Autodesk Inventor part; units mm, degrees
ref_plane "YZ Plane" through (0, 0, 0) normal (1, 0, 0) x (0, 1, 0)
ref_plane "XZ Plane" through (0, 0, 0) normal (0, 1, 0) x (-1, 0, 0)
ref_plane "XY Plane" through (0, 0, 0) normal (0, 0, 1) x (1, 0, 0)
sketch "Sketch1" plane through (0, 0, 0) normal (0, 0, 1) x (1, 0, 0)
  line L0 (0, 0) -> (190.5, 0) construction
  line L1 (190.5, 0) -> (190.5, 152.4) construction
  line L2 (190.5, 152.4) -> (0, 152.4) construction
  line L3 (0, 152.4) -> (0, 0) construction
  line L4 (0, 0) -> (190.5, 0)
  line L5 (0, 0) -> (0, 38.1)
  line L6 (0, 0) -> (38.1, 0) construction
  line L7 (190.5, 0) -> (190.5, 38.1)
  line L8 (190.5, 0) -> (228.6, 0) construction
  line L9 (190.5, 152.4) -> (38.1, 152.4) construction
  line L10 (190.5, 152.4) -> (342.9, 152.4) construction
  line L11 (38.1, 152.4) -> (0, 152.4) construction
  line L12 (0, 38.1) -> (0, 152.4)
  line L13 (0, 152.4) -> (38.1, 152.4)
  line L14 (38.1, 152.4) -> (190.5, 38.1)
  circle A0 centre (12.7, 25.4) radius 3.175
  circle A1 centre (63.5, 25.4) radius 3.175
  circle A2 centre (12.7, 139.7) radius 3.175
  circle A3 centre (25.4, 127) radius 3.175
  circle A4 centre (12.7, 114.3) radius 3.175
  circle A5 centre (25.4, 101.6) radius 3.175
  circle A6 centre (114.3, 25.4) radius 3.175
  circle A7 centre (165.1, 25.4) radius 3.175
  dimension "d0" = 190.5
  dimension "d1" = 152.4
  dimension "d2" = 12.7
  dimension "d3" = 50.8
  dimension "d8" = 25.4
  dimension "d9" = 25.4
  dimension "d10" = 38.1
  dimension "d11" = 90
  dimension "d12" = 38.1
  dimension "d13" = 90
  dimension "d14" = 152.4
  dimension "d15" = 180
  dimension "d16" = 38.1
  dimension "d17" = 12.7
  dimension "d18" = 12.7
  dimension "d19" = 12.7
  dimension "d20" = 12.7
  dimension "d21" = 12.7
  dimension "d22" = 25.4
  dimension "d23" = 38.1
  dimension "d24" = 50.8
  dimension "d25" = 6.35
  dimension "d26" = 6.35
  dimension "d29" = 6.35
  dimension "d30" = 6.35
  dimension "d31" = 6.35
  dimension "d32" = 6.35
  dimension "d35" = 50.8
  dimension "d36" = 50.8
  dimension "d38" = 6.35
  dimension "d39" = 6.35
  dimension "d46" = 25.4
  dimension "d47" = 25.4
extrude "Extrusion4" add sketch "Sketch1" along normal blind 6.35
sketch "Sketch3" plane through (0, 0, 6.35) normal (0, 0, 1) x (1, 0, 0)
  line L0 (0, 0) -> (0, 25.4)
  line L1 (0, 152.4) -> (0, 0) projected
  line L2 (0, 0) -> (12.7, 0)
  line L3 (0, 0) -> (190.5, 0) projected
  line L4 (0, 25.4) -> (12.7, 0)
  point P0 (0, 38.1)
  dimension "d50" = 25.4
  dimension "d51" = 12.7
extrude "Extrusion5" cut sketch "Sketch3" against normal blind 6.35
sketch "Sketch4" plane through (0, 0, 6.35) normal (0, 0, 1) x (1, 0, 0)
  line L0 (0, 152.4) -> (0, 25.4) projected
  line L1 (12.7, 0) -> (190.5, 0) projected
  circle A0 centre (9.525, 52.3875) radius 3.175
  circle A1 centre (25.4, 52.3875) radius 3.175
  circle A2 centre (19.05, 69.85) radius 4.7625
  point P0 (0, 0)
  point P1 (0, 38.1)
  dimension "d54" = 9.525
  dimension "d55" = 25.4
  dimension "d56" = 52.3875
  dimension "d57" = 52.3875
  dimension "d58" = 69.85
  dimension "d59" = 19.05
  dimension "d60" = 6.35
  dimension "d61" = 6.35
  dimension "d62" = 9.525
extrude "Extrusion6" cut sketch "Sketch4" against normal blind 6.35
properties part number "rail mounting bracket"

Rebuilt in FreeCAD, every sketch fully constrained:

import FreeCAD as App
import Part
import Sketcher
from FreeCAD import Vector
Q = App.Units.Quantity

doc = App.newDocument("Part")
params = doc.addObject("Spreadsheet::Sheet", "Params")
for row, (alias, value) in enumerate([
    ("sketch1_diameter", "0.25 in"),
    ("sketch1_height", "6 in"),
    ("sketch1_width", "7.5 in"),
    ("sketch1_width2", "1.5 in"),
    ("pad1_length", "0.25 in"),
    ("sketch2_height", "1 in"),
    ("sketch2_width", "0.5 in"),
    ("pocket1_length", "0.25 in"),
    ("sketch3_diameter", "0.25 in"),
    ("sketch3_diameter2", "0.375 in"),
    ("pocket2_length", "0.25 in"),
], start=1):
    params.set(f"A{row}", alias)
    params.set(f"B{row}", "=" + value)
    params.setAlias(f"B{row}", alias)

body = doc.addObject("PartDesign::Body", "Body")

# Sketch on XY plane
sketch1 = doc.addObject("Sketcher::SketchObject", "Sketch")
body.addObject(sketch1)
sketch1.AttachmentSupport = (doc.XY_Plane, [""])
sketch1.MapMode = "FlatFace"
sketch1.addGeometry(Part.LineSegment(Vector(0, 152.4, 0), Vector(0, 0, 0)), False)
sketch1.addGeometry(Part.LineSegment(Vector(0, 0, 0), Vector(190.5, 0, 0)), False)
sketch1.addGeometry(Part.LineSegment(Vector(190.5, 0, 0), Vector(190.5, 38.1, 0)), False)
sketch1.addGeometry(Part.LineSegment(Vector(190.5, 38.1, 0), Vector(38.1, 152.4, 0)), False)
sketch1.addGeometry(Part.LineSegment(Vector(38.1, 152.4, 0), Vector(0, 152.4, 0)), False)
sketch1.addGeometry(Part.Circle(Vector(12.7, 25.4, 0), Vector(0, 0, 1), 3.2), False)
sketch1.addGeometry(Part.Circle(Vector(63.5, 25.4, 0), Vector(0, 0, 1), 3.2), False)
sketch1.addGeometry(Part.Circle(Vector(114.3, 25.4, 0), Vector(0, 0, 1), 3.2), False)
sketch1.addGeometry(Part.Circle(Vector(165.1, 25.4, 0), Vector(0, 0, 1), 3.2), False)
sketch1.addGeometry(Part.Circle(Vector(25.4, 101.6, 0), Vector(0, 0, 1), 3.2), False)
sketch1.addGeometry(Part.Circle(Vector(12.7, 114.3, 0), Vector(0, 0, 1), 3.2), False)
sketch1.addGeometry(Part.Circle(Vector(25.4, 127, 0), Vector(0, 0, 1), 3.2), False)
sketch1.addGeometry(Part.Circle(Vector(12.7, 139.7, 0), Vector(0, 0, 1), 3.2), False)
sketch1.addConstraint(Sketcher.Constraint("Coincident", 0, 2, 1, 1))
sketch1.addConstraint(Sketcher.Constraint("Coincident", 1, 2, 2, 1))
sketch1.addConstraint(Sketcher.Constraint("Coincident", 2, 2, 3, 1))
sketch1.addConstraint(Sketcher.Constraint("Coincident", 3, 2, 4, 1))
sketch1.addConstraint(Sketcher.Constraint("Coincident", 4, 2, 0, 1))
sketch1.addConstraint(Sketcher.Constraint("Vertical", 0))
sketch1.addConstraint(Sketcher.Constraint("Horizontal", 1))
sketch1.addConstraint(Sketcher.Constraint("Vertical", 2))
sketch1.addConstraint(Sketcher.Constraint("Horizontal", 4))
sketch1.addConstraint(Sketcher.Constraint("Coincident", 0, 2, -1, 1))
sketch1.addConstraint(Sketcher.Constraint("Equal", 5, 6))
sketch1.addConstraint(Sketcher.Constraint("Equal", 6, 7))
sketch1.addConstraint(Sketcher.Constraint("Equal", 7, 8))
sketch1.addConstraint(Sketcher.Constraint("Equal", 8, 9))
sketch1.addConstraint(Sketcher.Constraint("Equal", 9, 10))
sketch1.addConstraint(Sketcher.Constraint("Equal", 10, 11))
sketch1.addConstraint(Sketcher.Constraint("Equal", 11, 12))
sketch1.addConstraint(Sketcher.Constraint("Horizontal", 5, 3, 6, 3))
sketch1.addConstraint(Sketcher.Constraint("Horizontal", 6, 3, 7, 3))
sketch1.addConstraint(Sketcher.Constraint("Horizontal", 7, 3, 8, 3))
sketch1.addConstraint(Sketcher.Constraint("Vertical", 5, 3, 10, 3))
sketch1.addConstraint(Sketcher.Constraint("Vertical", 9, 3, 11, 3))
sketch1.addConstraint(Sketcher.Constraint("Vertical", 10, 3, 12, 3))
sketch1.addConstraint(Sketcher.Constraint("Equal", 4, 2))
sketch1.addConstraint(Sketcher.Constraint("Diameter", 5, Q("0.25 in")))
sketch1.addConstraint(Sketcher.Constraint("DistanceY", 0, 2, 0, 1, Q("6 in")))
sketch1.addConstraint(Sketcher.Constraint("DistanceX", 1, 1, 1, 2, Q("7.5 in")))
sketch1.addConstraint(Sketcher.Constraint("DistanceX", 4, 2, 4, 1, Q("1.5 in")))
sketch1.addConstraint(Sketcher.Constraint("DistanceY", -1, 1, 5, 3, Q("1 in")))
sketch1.addConstraint(Sketcher.Constraint("DistanceX", -1, 1, 9, 3, Q("1 in")))
sketch1.addConstraint(Sketcher.Constraint("DistanceX", 5, 3, 6, 3, Q("2 in")))
sketch1.addConstraint(Sketcher.Constraint("DistanceX", 6, 3, 7, 3, Q("2 in")))
sketch1.addConstraint(Sketcher.Constraint("DistanceX", 7, 3, 8, 3, Q("2 in")))
sketch1.addConstraint(Sketcher.Constraint("DistanceY", 9, 3, 11, 3, Q("1 in")))
sketch1.addConstraint(Sketcher.Constraint("DistanceY", 10, 3, 12, 3, Q("1 in")))
sketch1.addConstraint(Sketcher.Constraint("DistanceX", 8, 3, 1, 2, Q("1 in")))
sketch1.addConstraint(Sketcher.Constraint("DistanceY", 11, 3, 3, 2, Q("1 in")))
sketch1.addConstraint(Sketcher.Constraint("DistanceY", 9, 3, 10, 3, Q("0.5 in")))
sketch1.setExpression("Constraints[24]", "Params.sketch1_diameter")
sketch1.setExpression("Constraints[25]", "Params.sketch1_height")
sketch1.setExpression("Constraints[26]", "Params.sketch1_width")
sketch1.setExpression("Constraints[27]", "Params.sketch1_width2")
pad1 = doc.addObject("PartDesign::Pad", "Pad")
body.addObject(pad1)
pad1.Profile = sketch1
pad1.setExpression("Length", "Params.pad1_length")

# Sketch on XY plane
sketch2 = doc.addObject("Sketcher::SketchObject", "Sketch001")
body.addObject(sketch2)
sketch2.AttachmentSupport = (doc.XY_Plane, [""])
sketch2.MapMode = "FlatFace"
sketch2.AttachmentOffset = App.Placement(Vector(0, 0, 0.25 * 25.4), App.Rotation())
sketch2.addGeometry(Part.LineSegment(Vector(0, 25, 0), Vector(0, 0, 0)), False)
sketch2.addGeometry(Part.LineSegment(Vector(0, 0, 0), Vector(13, 0, 0)), False)
sketch2.addGeometry(Part.LineSegment(Vector(13, 0, 0), Vector(0, 25, 0)), False)
sketch2.addConstraint(Sketcher.Constraint("Coincident", 0, 2, 1, 1))
sketch2.addConstraint(Sketcher.Constraint("Coincident", 1, 2, 2, 1))
sketch2.addConstraint(Sketcher.Constraint("Coincident", 2, 2, 0, 1))
sketch2.addConstraint(Sketcher.Constraint("Vertical", 0))
sketch2.addConstraint(Sketcher.Constraint("Horizontal", 1))
sketch2.addConstraint(Sketcher.Constraint("Coincident", 0, 2, -1, 1))
sketch2.addConstraint(Sketcher.Constraint("DistanceY", 0, 2, 0, 1, Q("1 in")))
sketch2.addConstraint(Sketcher.Constraint("DistanceX", 1, 1, 1, 2, Q("0.5 in")))
sketch2.setExpression("Constraints[6]", "Params.sketch2_height")
sketch2.setExpression("Constraints[7]", "Params.sketch2_width")
pocket1 = doc.addObject("PartDesign::Pocket", "Pocket")
body.addObject(pocket1)
pocket1.Profile = sketch2
pocket1.setExpression("Length", "Params.pocket1_length")

# Sketch on XY plane
sketch3 = doc.addObject("Sketcher::SketchObject", "Sketch002")
body.addObject(sketch3)
sketch3.AttachmentSupport = (doc.XY_Plane, [""])
sketch3.MapMode = "FlatFace"
sketch3.AttachmentOffset = App.Placement(Vector(0, 0, 0.25 * 25.4), App.Rotation())
sketch3.addGeometry(Part.Circle(Vector(9.5, 52.4, 0), Vector(0, 0, 1), 3.2), False)
sketch3.addGeometry(Part.Circle(Vector(25.4, 52.4, 0), Vector(0, 0, 1), 3.2), False)
sketch3.addGeometry(Part.Circle(Vector(19.1, 69.8, 0), Vector(0, 0, 1), 4.8), False)
sketch3.addConstraint(Sketcher.Constraint("Equal", 0, 1))
sketch3.addConstraint(Sketcher.Constraint("Horizontal", 0, 3, 1, 3))
sketch3.addConstraint(Sketcher.Constraint("Diameter", 0, Q("0.25 in")))
sketch3.addConstraint(Sketcher.Constraint("Diameter", 2, Q("0.375 in")))
sketch3.addConstraint(Sketcher.Constraint("DistanceX", -1, 1, 1, 3, Q("1 in")))
sketch3.addConstraint(Sketcher.Constraint("DistanceX", -1, 1, 2, 3, Q("0.75 in")))
sketch3.addConstraint(Sketcher.Constraint("DistanceY", -1, 1, 2, 3, Q("2.75 in")))
sketch3.addConstraint(Sketcher.Constraint("DistanceX", -1, 1, 0, 3, Q("0.375 in")))
sketch3.addConstraint(Sketcher.Constraint("DistanceY", -1, 1, 0, 3, Q("2.0625 in")))
sketch3.setExpression("Constraints[2]", "Params.sketch3_diameter")
sketch3.setExpression("Constraints[3]", "Params.sketch3_diameter2")
pocket2 = doc.addObject("PartDesign::Pocket", "Pocket001")
body.addObject(pocket2)
pocket2.Profile = sketch3
pocket2.setExpression("Length", "Params.pocket2_length")

doc.recompute()
